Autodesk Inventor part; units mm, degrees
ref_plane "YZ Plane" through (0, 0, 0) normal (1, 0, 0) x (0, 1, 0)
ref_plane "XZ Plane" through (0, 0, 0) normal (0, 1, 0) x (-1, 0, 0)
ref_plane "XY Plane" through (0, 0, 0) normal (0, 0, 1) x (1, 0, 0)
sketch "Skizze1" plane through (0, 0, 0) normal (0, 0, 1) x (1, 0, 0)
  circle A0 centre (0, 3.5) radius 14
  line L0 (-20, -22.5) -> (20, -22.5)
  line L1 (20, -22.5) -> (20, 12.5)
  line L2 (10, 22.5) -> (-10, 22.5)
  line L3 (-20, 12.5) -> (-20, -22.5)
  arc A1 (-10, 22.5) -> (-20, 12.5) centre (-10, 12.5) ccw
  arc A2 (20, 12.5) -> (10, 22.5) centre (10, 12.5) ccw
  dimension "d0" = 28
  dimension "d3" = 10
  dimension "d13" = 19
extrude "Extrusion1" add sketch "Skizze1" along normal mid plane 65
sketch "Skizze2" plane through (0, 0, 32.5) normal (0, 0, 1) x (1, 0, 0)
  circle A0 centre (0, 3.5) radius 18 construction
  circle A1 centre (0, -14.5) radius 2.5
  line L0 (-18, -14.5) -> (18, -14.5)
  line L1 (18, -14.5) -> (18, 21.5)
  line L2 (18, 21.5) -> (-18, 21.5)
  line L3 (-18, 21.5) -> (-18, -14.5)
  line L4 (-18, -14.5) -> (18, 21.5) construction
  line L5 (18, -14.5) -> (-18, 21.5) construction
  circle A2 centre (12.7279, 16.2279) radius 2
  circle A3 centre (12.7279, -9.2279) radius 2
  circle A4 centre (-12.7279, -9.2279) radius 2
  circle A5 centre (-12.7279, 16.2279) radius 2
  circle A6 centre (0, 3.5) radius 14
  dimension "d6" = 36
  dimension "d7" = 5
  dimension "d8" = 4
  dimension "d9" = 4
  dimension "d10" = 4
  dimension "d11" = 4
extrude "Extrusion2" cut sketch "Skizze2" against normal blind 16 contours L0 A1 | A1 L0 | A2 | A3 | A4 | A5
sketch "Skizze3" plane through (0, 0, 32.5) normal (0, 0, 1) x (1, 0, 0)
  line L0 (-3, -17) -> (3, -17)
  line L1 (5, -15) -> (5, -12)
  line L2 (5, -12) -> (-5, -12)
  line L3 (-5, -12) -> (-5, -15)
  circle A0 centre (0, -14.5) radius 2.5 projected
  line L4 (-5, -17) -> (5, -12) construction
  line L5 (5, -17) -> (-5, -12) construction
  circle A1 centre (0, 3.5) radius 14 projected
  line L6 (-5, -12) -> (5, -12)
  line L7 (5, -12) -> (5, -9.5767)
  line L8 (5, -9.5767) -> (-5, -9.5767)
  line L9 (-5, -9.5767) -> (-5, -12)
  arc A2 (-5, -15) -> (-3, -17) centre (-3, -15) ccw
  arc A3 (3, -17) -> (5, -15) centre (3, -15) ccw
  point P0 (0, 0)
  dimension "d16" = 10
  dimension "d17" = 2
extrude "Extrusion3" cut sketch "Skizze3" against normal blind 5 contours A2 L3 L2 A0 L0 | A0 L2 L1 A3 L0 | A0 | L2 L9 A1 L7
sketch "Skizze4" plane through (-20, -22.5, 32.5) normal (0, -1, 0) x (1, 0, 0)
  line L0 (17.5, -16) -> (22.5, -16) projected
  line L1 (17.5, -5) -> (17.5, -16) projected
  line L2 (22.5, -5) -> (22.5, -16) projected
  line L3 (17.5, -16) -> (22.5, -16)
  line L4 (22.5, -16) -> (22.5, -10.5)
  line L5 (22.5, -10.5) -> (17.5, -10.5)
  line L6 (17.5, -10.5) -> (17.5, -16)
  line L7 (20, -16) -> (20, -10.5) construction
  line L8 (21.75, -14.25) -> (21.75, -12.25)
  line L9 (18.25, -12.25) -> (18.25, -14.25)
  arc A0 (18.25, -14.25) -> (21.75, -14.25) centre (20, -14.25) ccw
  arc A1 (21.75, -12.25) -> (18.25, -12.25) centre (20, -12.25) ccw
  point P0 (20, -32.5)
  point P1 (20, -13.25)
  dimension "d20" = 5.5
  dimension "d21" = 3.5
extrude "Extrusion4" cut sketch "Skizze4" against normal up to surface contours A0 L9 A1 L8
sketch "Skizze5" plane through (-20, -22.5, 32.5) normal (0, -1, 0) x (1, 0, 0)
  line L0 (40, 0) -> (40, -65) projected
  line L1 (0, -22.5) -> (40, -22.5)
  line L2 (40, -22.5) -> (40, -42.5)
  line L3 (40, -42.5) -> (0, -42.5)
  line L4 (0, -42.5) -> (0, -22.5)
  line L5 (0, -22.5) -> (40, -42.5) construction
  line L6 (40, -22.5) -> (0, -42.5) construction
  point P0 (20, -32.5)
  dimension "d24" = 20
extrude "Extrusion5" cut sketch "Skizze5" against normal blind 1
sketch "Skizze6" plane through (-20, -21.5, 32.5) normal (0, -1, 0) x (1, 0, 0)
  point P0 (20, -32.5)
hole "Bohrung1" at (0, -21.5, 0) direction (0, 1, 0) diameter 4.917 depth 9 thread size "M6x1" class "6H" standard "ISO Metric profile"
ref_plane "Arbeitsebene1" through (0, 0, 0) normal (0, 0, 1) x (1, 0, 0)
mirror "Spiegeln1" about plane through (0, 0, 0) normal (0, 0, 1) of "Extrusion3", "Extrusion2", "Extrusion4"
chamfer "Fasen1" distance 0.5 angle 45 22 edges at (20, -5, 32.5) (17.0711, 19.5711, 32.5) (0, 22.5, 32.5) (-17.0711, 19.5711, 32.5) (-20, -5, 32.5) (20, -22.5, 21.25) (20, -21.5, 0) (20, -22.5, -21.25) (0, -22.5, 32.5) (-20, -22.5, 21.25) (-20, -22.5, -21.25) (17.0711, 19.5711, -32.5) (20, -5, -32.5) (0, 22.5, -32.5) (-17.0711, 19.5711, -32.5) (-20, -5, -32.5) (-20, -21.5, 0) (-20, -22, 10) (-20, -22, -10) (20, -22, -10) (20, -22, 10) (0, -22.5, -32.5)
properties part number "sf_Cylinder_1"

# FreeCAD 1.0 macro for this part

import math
import FreeCAD as App
import Part
import Sketcher

V = App.Vector


def edges_at(feature, points):
    """Names of the edges that pass closest to the given points."""
    edges = feature.Shape.Edges
    near = lambda p: min(range(len(edges)), key=lambda i: edges[i].distToShape(Part.Vertex(*p))[0])
    return sorted({f"Edge{near(p) + 1}" for p in points})


def add_polygon(sketch, points):
    """Adds a closed chain of lines whose ends are joined by coincident constraints."""
    first, n = sketch.GeometryCount, len(points)
    for a, b in zip(points, points[1:] + points[:1]):
        sketch.addGeometry(Part.LineSegment(App.Vector(*a, 0), App.Vector(*b, 0)), False)
    for i in range(n):
        sketch.addConstraint(Sketcher.Constraint("Coincident", first + i, 2, first + (i + 1) % n, 1))

doc = App.newDocument("Part")
params = doc.addObject("Spreadsheet::Sheet", "Params")
for row, (alias, value) in enumerate([
    ("sketch1_diameter", "28 mm"),
    ("sketch1_radius", "10 mm"),
    ("sketch1_height", "35 mm"),
    ("pad1_length", "65 mm"),
    ("sketch2_diameter", "5 mm"),
    ("sketch2_diameter2", "4 mm"),
    ("pocket1_length", "16 mm"),
    ("sketch3_radius", "2 mm"),
    ("sketch3_radius2", "14 mm"),
    ("pocket2_length", "5 mm"),
    ("sketch4_radius", "1.75 mm"),
    ("sketch4_height", "2 mm"),
    ("pocket3_length", "6.2146 mm"),
    ("sketch5_height", "20 mm"),
    ("pocket4_length", "1 mm"),
    ("hole_diameter", "4.917 mm"),
    ("hole_depth", "9 mm"),
    ("chamfer_size", "0.5 mm"),
], start=1):
    params.set(f"A{row}", alias)
    params.set(f"B{row}", "=" + value)
    params.setAlias(f"B{row}", alias)

body = doc.addObject("PartDesign::Body", "Body")

# Sketch on XY plane
sketch1 = body.newObject("Sketcher::SketchObject", "Sketch")
sketch1.AttachmentSupport = (doc.getObject("XY_Plane"), [""])
sketch1.MapMode = "FlatFace"
sketch1.addGeometry([
    Part.LineSegment(V(-20, 12, 0), V(-20, -22, 0)),  # 0
    Part.LineSegment(V(-20, -22, 0), V(20, -22, 0)),  # 1
    Part.LineSegment(V(20, -22, 0), V(20, 12, 0)),  # 2
    Part.ArcOfCircle(Part.Circle(V(10, 12, 0), V(0, 0, 1), 10), math.radians(0), math.radians(90)),  # 3
    Part.LineSegment(V(10, 22, 0), V(-10, 22, 0)),  # 4
    Part.ArcOfCircle(Part.Circle(V(-10, 12, 0), V(0, 0, 1), 10), math.radians(90), math.radians(180)),  # 5
    Part.Circle(V(0, 4, 0), V(0, 0, 1), 14),  # 6
], False)
sketch1.addConstraint([
    Sketcher.Constraint("Coincident", 0, 2, 1, 1),
    Sketcher.Constraint("Coincident", 1, 2, 2, 1),
    Sketcher.Constraint("Tangent", 2, 2, 3, 1),
    Sketcher.Constraint("Tangent", 3, 2, 4, 1),
    Sketcher.Constraint("Tangent", 4, 2, 5, 1),
    Sketcher.Constraint("Tangent", 5, 2, 0, 1),
    Sketcher.Constraint("Vertical", 0),
    Sketcher.Constraint("Horizontal", 1),
    Sketcher.Constraint("Vertical", 2),
    Sketcher.Constraint("Horizontal", 4),
    Sketcher.Constraint("Equal", 3, 5),
    Sketcher.Constraint("PointOnObject", 6, 3, -2),
    Sketcher.Constraint("Diameter", 6, 28.0),
    Sketcher.Constraint("Radius", 3, 10.0),
    Sketcher.Constraint("DistanceX", -1, 1, 3, 3, 10.0),
    Sketcher.Constraint("DistanceX", 5, 3, -1, 1, 10.0),
    Sketcher.Constraint("DistanceY", 6, 3, 3, 2, 19.0),
    Sketcher.Constraint("DistanceY", 0, 2, 0, 1, 35.0),
    Sketcher.Constraint("DistanceY", -1, 1, 3, 3, 12.5),
])
sketch1.setExpression("Constraints[12]", "Params.sketch1_diameter")
sketch1.setExpression("Constraints[13]", "Params.sketch1_radius")
sketch1.setExpression("Constraints[17]", "Params.sketch1_height")
pad1 = body.newObject("PartDesign::Pad", "Pad")
pad1.Profile = sketch1
pad1.setExpression("Length", "Params.pad1_length")
pad1.Midplane = True

# Sketch on XY plane
sketch2 = body.newObject("Sketcher::SketchObject", "Sketch001")
sketch2.AttachmentSupport = (doc.getObject("XY_Plane"), [""])
sketch2.MapMode = "FlatFace"
sketch2.AttachmentOffset = App.Placement(V(0, 0, 32.5), App.Rotation())
sketch2.addGeometry([
    Part.Circle(V(0, -14.5, 0), V(0, 0, 1), 2.5),  # 0
    Part.Circle(V(12.7, 16.2, 0), V(0, 0, 1), 2),  # 1
    Part.Circle(V(12.7, -9.2, 0), V(0, 0, 1), 2),  # 2
    Part.Circle(V(-12.7, -9.2, 0), V(0, 0, 1), 2),  # 3
    Part.Circle(V(-12.7, 16.2, 0), V(0, 0, 1), 2),  # 4
], False)
sketch2.addConstraint([
    Sketcher.Constraint("Equal", 1, 2),
    Sketcher.Constraint("Equal", 2, 3),
    Sketcher.Constraint("Equal", 3, 4),
    Sketcher.Constraint("Symmetric", 2, 3, 3, 3, -2),
    Sketcher.Constraint("Symmetric", 1, 3, 4, 3, -2),
    Sketcher.Constraint("PointOnObject", 0, 3, -2),
    Sketcher.Constraint("Vertical", 1, 3, 2, 3),
    Sketcher.Constraint("Diameter", 0, 5.0),
    Sketcher.Constraint("Diameter", 1, 4.0),
    Sketcher.Constraint("DistanceY", 0, 3, -1, 1, 14.5),
    Sketcher.Constraint("DistanceX", -1, 1, 1, 3, 12.728),
    Sketcher.Constraint("DistanceY", -1, 1, 1, 3, 16.228),
    Sketcher.Constraint("DistanceY", 2, 3, -1, 1, 9.228),
])
sketch2.setExpression("Constraints[7]", "Params.sketch2_diameter")
sketch2.setExpression("Constraints[8]", "Params.sketch2_diameter2")
pocket1 = body.newObject("PartDesign::Pocket", "Pocket")
pocket1.Profile = sketch2
pocket1.setExpression("Length", "Params.pocket1_length")

# Sketch on XY plane
sketch3 = body.newObject("Sketcher::SketchObject", "Sketch002")
sketch3.AttachmentSupport = (doc.getObject("XY_Plane"), [""])
sketch3.MapMode = "FlatFace"
sketch3.AttachmentOffset = App.Placement(V(0, 0, 32.5), App.Rotation())
sketch3.addGeometry([
    Part.ArcOfCircle(Part.Circle(V(-3, -15, 0), V(0, 0, 1), 2), math.radians(180), math.radians(270)),  # 0
    Part.LineSegment(V(-3, -17, 0), V(3, -17, 0)),  # 1
    Part.ArcOfCircle(Part.Circle(V(3, -15, 0), V(0, 0, 1), 2), math.radians(-90), math.radians(0)),  # 2
    Part.LineSegment(V(5, -15, 0), V(5, -9.6, 0)),  # 3
    Part.ArcOfCircle(Part.Circle(V(0, 3.5, 0), V(0, 0, 1), 14), math.radians(-111), math.radians(-69)),  # 4
    Part.LineSegment(V(-5, -9.6, 0), V(-5, -15, 0)),  # 5
], False)
sketch3.addConstraint([
    Sketcher.Constraint("Tangent", 0, 2, 1, 1),
    Sketcher.Constraint("Tangent", 1, 2, 2, 1),
    Sketcher.Constraint("Tangent", 2, 2, 3, 1),
    Sketcher.Constraint("Coincident", 3, 2, 4, 2),
    Sketcher.Constraint("Coincident", 4, 1, 5, 1),
    Sketcher.Constraint("Tangent", 5, 2, 0, 1),
    Sketcher.Constraint("Horizontal", 1),
    Sketcher.Constraint("Vertical", 3),
    Sketcher.Constraint("Vertical", 5),
    Sketcher.Constraint("Equal", 0, 2),
    Sketcher.Constraint("Symmetric", 3, 2, 4, 1, -2),
    Sketcher.Constraint("Radius", 0, 2.0),
    Sketcher.Constraint("Radius", 4, 14.0),
    Sketcher.Constraint("DistanceX", 4, 1, 3, 2, 10.0),
    Sketcher.Constraint("DistanceY", 0, 3, -1, 1, 15.0),
    Sketcher.Constraint("DistanceY", -1, 1, 4, 3, 3.5),
])
sketch3.setExpression("Constraints[11]", "Params.sketch3_radius")
sketch3.setExpression("Constraints[12]", "Params.sketch3_radius2")
pocket2 = body.newObject("PartDesign::Pocket", "Pocket001")
pocket2.Profile = sketch3
pocket2.setExpression("Length", "Params.pocket2_length")

# Sketch on XZ plane
sketch4 = body.newObject("Sketcher::SketchObject", "Sketch003")
sketch4.AttachmentSupport = (doc.getObject("XZ_Plane"), [""])
sketch4.MapMode = "FlatFace"
sketch4.AttachmentOffset = App.Placement(V(0, 0, 22.5), App.Rotation())
sketch4.addGeometry([
    Part.ArcOfCircle(Part.Circle(V(0, 18.2, 0), V(0, 0, 1), 1.8), math.radians(180), math.radians(360)),
    Part.LineSegment(V(1.8, 18.2, 0), V(1.8, 20.2, 0)),
    Part.ArcOfCircle(Part.Circle(V(0, 20.2, 0), V(0, 0, 1), 1.8), math.radians(0), math.radians(180)),
    Part.LineSegment(V(-1.8, 20.2, 0), V(-1.8, 18.2, 0)),
], False)
sketch4.addConstraint([
    Sketcher.Constraint("Tangent", 0, 2, 1, 1),
    Sketcher.Constraint("Tangent", 1, 2, 2, 1),
    Sketcher.Constraint("Tangent", 2, 2, 3, 1),
    Sketcher.Constraint("Tangent", 3, 2, 0, 1),
    Sketcher.Constraint("Vertical", 1),
    Sketcher.Constraint("Vertical", 3),
    Sketcher.Constraint("PointOnObject", 0, 3, -2),
    Sketcher.Constraint("Radius", 0, 1.75),
    Sketcher.Constraint("DistanceY", 1, 1, 1, 2, 2.0),
    Sketcher.Constraint("DistanceY", -1, 1, 0, 3, 18.25),
])
sketch4.setExpression("Constraints[7]", "Params.sketch4_radius")
sketch4.setExpression("Constraints[8]", "Params.sketch4_height")
pocket3 = body.newObject("PartDesign::Pocket", "Pocket002")
pocket3.Profile = sketch4
pocket3.setExpression("Length", "Params.pocket3_length")

# Sketch on XZ plane
sketch5 = body.newObject("Sketcher::SketchObject", "Sketch004")
sketch5.AttachmentSupport = (doc.getObject("XZ_Plane"), [""])
sketch5.MapMode = "FlatFace"
sketch5.AttachmentOffset = App.Placement(V(0, 0, 22.5), App.Rotation())
add_polygon(sketch5, [(20, -10), (20, 10), (-20, 10), (-20, -10)])  # lines 0-3
sketch5.addConstraint([
    Sketcher.Constraint("Vertical", 0),
    Sketcher.Constraint("Horizontal", 1),
    Sketcher.Constraint("Vertical", 2),
    Sketcher.Constraint("Horizontal", 3),
    Sketcher.Constraint("Symmetric", 0, 2, 2, 2, -1, 1),
    Sketcher.Constraint("DistanceY", 0, 1, 0, 2, 20.0),
    Sketcher.Constraint("DistanceX", -1, 1, 0, 2, 20.0),
])
sketch5.setExpression("Constraints[9]", "Params.sketch5_height")
pocket4 = body.newObject("PartDesign::Pocket", "Pocket003")
pocket4.Profile = sketch5
pocket4.setExpression("Length", "Params.pocket4_length")

# Sketch on XZ plane
sketch6 = body.newObject("Sketcher::SketchObject", "Sketch005")
sketch6.AttachmentSupport = (doc.getObject("XZ_Plane"), [""])
sketch6.MapMode = "FlatFace"
sketch6.AttachmentOffset = App.Placement(V(0, 0, 21.5), App.Rotation())
sketch6.addGeometry(Part.Circle(V(0, 0, 0), V(0, 0, 1), 2.5), False)
sketch6.addConstraint([
    Sketcher.Constraint("Coincident", 0, 3, -1, 1),
    Sketcher.Constraint("Diameter", 0, 4.917),
])
doc.recompute()
hole = body.newObject("PartDesign::Hole", "Hole")
hole.Profile = sketch6
hole.ThreadType = "None"
hole.setExpression("Diameter", "Params.hole_diameter")
hole.DepthType = "Dimension"
hole.setExpression("Depth", "Params.hole_depth")
hole.DrillPoint = "Flat"
doc.recompute()

mirrored = body.newObject("PartDesign::Mirrored", "Mirrored")
mirrored.Originals = [pocket2, pocket1, pocket3]
mirrored.MirrorPlane = (doc.getObject("XY_Plane"), [""])
body.Tip = mirrored
doc.recompute()

chamfer = body.newObject("PartDesign::Chamfer", "Chamfer")
chamfer.Base = (mirrored, edges_at(mirrored, [
    (20, -5, 32.5),
    (17.071, 19.571, 32.5),
    (0, 22.5, 32.5),
    (-17.071, 19.571, 32.5),
    (-20, -5, 32.5),
    (20, -22.5, 21.25),
    (20, -21.5, 0),
    (20, -22.5, -21.25),
    (0, -22.5, 32.5),
    (-20, -22.5, 21.25),
    (-20, -22.5, -21.25),
    (17.071, 19.571, -32.5),
    (20, -5, -32.5),
    (0, 22.5, -32.5),
    (-17.071, 19.571, -32.5),
    (-20, -5, -32.5),
    (-20, -21.5, 0),
    (-20, -22, 10),
    (-20, -22, -10),
    (20, -22, -10),
    (20, -22, 10),
    (0, -22.5, -32.5),
]))
chamfer.setExpression("Size", "Params.chamfer_size")

doc.recompute()
